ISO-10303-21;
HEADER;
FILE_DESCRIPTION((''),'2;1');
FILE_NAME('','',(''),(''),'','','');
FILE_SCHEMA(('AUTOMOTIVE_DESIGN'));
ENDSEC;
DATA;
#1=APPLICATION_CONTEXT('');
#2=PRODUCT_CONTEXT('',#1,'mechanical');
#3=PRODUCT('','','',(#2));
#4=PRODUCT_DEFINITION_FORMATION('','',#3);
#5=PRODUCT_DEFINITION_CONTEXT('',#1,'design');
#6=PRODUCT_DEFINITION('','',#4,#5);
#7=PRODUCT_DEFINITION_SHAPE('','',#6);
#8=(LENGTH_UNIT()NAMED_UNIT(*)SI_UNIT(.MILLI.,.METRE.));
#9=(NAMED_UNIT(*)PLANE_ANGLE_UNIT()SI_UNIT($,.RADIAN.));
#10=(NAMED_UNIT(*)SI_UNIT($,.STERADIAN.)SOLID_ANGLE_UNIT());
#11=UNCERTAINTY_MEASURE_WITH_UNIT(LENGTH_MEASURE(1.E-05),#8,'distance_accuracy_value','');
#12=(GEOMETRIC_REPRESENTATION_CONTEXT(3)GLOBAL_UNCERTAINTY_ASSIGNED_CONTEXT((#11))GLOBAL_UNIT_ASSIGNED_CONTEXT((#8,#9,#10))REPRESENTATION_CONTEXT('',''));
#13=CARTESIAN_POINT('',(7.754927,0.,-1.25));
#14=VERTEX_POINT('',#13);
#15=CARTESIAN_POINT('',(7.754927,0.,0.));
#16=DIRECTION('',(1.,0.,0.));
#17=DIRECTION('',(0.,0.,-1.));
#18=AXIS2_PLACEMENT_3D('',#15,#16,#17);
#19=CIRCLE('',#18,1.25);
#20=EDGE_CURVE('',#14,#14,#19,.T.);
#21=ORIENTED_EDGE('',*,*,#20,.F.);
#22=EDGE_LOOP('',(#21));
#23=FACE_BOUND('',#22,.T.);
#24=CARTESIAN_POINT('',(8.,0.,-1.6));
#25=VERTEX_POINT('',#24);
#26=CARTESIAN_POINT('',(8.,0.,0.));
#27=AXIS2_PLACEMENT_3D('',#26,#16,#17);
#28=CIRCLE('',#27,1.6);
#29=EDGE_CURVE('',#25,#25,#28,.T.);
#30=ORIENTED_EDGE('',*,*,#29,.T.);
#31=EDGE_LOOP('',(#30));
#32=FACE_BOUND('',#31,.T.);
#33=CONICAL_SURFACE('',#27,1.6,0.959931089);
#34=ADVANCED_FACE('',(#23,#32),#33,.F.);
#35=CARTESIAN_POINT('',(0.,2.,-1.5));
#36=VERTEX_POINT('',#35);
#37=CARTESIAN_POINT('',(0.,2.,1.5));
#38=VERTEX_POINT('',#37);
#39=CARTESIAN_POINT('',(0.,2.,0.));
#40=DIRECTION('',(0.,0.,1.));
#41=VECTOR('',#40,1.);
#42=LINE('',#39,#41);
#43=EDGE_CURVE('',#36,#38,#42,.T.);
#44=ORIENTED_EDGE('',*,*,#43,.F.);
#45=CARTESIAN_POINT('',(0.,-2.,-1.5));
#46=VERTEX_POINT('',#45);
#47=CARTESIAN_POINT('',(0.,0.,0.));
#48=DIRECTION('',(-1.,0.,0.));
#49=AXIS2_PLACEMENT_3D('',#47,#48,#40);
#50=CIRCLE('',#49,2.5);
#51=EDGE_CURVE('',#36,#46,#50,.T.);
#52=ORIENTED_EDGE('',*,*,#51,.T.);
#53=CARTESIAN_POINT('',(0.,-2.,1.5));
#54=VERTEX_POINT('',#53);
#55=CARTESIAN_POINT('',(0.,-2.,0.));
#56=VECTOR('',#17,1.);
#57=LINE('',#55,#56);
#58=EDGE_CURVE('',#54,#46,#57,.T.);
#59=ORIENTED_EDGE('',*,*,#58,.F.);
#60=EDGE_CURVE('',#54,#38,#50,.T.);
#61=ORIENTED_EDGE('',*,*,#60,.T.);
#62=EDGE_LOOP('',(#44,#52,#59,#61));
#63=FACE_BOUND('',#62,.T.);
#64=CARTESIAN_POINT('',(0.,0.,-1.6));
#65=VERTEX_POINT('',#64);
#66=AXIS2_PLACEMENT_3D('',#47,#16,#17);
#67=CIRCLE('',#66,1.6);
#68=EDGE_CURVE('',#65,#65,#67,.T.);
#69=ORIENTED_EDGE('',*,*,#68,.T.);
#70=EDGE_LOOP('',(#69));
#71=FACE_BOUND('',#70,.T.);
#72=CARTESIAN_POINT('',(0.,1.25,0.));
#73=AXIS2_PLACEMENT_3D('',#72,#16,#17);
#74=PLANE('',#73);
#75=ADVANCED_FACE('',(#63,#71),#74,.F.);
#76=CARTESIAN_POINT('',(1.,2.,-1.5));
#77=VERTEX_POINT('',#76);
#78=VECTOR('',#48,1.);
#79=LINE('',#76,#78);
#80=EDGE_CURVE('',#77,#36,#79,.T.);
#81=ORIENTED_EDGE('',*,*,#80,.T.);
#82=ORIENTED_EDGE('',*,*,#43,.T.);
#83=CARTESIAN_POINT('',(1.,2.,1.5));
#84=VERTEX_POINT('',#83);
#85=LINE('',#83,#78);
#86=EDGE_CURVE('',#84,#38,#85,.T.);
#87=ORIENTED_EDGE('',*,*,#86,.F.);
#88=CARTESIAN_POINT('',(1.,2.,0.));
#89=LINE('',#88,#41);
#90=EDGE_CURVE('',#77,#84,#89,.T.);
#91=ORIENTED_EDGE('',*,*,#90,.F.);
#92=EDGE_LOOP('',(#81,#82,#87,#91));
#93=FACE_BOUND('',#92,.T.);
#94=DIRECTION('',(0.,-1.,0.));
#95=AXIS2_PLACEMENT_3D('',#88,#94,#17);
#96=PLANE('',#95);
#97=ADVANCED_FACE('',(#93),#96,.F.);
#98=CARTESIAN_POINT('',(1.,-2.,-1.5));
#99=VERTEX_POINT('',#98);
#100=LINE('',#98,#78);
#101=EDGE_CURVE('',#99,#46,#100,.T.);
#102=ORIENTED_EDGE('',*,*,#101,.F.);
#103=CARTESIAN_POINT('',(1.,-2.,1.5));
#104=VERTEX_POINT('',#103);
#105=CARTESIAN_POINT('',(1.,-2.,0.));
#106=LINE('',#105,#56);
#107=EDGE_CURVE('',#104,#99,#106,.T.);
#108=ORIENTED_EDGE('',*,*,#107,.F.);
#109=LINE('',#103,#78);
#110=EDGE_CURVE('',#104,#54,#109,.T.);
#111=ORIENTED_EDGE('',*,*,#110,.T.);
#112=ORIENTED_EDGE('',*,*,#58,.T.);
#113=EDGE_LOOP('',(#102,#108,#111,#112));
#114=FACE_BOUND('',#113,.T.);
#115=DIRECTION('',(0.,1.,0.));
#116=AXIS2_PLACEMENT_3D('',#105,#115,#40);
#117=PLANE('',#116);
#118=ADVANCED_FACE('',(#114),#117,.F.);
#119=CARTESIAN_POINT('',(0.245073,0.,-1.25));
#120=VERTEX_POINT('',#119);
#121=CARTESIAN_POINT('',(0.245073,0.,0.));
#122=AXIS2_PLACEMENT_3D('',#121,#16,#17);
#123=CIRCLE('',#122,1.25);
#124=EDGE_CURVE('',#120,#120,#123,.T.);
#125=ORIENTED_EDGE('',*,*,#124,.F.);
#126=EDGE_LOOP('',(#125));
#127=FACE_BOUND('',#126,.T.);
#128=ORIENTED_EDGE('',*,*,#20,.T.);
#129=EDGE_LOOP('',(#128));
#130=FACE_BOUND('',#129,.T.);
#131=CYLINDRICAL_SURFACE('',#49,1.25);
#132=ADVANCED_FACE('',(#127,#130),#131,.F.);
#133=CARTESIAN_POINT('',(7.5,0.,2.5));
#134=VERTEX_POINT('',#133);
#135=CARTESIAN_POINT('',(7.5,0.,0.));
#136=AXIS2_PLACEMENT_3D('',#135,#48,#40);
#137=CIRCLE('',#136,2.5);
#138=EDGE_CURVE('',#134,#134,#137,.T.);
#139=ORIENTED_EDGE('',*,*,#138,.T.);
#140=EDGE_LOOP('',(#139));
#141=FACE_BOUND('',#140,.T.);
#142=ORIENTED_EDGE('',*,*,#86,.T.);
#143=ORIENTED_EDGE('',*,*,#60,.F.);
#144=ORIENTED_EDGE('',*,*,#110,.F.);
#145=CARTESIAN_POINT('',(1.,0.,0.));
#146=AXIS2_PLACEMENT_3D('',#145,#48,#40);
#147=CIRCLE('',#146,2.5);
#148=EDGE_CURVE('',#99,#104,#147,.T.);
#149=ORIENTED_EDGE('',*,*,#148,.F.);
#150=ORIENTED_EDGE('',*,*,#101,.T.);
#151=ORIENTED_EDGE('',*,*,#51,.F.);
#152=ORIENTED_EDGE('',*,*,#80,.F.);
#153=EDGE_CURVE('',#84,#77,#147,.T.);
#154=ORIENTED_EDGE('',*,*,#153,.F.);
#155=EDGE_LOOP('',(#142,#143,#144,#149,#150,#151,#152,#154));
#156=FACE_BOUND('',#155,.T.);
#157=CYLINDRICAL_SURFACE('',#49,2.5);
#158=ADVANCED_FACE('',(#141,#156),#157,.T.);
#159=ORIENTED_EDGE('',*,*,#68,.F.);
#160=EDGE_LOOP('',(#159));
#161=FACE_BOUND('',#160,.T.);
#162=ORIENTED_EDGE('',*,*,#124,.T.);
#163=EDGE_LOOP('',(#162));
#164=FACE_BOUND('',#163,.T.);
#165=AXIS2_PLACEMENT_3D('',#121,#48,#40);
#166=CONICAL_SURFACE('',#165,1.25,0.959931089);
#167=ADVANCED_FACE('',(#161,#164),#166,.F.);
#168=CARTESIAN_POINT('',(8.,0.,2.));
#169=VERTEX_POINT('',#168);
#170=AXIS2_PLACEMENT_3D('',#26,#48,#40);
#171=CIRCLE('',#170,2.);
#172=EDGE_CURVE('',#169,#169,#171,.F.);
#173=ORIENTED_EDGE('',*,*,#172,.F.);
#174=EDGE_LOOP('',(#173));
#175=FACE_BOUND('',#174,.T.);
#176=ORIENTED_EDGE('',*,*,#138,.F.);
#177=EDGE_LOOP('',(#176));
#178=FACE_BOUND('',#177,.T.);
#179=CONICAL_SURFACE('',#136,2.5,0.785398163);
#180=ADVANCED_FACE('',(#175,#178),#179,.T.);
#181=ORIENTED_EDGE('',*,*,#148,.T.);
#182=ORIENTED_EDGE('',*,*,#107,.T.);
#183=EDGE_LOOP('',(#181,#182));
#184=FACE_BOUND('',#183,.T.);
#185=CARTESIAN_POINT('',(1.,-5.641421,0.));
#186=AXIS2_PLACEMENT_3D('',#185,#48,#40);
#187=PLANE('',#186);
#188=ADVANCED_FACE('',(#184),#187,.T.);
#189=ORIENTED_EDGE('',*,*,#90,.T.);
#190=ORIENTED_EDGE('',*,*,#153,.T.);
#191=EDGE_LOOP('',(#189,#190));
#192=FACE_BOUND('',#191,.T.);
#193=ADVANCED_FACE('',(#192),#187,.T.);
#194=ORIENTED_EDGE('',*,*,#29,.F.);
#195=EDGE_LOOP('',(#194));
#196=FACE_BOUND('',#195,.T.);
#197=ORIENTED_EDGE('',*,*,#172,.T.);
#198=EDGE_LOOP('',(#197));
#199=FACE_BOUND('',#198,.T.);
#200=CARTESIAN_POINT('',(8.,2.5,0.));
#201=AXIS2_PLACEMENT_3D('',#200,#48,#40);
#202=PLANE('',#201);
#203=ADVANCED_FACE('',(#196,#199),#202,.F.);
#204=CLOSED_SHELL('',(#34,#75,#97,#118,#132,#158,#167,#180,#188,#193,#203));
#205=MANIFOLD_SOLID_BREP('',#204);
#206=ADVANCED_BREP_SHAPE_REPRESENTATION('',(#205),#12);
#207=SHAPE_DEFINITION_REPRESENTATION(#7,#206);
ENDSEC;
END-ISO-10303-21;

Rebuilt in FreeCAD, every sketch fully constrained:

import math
import FreeCAD as App
import Part
import Sketcher
Q = App.Units.Quantity


def edges_at(feature, points):
    """Names of the edges that pass closest to the given points."""
    edges = feature.Shape.Edges
    near = lambda p: min(range(len(edges)), key=lambda i: edges[i].distToShape(Part.Vertex(*p))[0])
    return sorted({f"Edge{near(p) + 1}" for p in points})

doc = App.newDocument("Part")
body = doc.addObject("PartDesign::Body", "Body")

# Sketch on XY plane
sketch1 = body.newObject("Sketcher::SketchObject", "Sketch")
sketch1.AttachmentSupport = (doc.getObject("XY_Plane"), [""])
sketch1.MapMode = "FlatFace"
sketch1.addGeometry(Part.LineSegment(App.Vector(0, 2.5, 0), App.Vector(0, 1.2, 0)), False)
sketch1.addGeometry(Part.LineSegment(App.Vector(0, 1.2, 0), App.Vector(8, 1.2, 0)), False)
sketch1.addGeometry(Part.LineSegment(App.Vector(8, 1.2, 0), App.Vector(8, 2.5, 0)), False)
sketch1.addGeometry(Part.LineSegment(App.Vector(8, 2.5, 0), App.Vector(0, 2.5, 0)), False)
sketch1.addConstraint(Sketcher.Constraint("Coincident", 0, 2, 1, 1))
sketch1.addConstraint(Sketcher.Constraint("Coincident", 1, 2, 2, 1))
sketch1.addConstraint(Sketcher.Constraint("Coincident", 2, 2, 3, 1))
sketch1.addConstraint(Sketcher.Constraint("Coincident", 3, 2, 0, 1))
sketch1.addConstraint(Sketcher.Constraint("Vertical", 0))
sketch1.addConstraint(Sketcher.Constraint("Horizontal", 1))
sketch1.addConstraint(Sketcher.Constraint("Vertical", 2))
sketch1.addConstraint(Sketcher.Constraint("Horizontal", 3))
sketch1.addConstraint(Sketcher.Constraint("PointOnObject", 0, 2, -2))
sketch1.addConstraint(Sketcher.Constraint("DistanceX", 1, 1, 1, 2, 8.0))
sketch1.addConstraint(Sketcher.Constraint("DistanceY", 0, 2, 0, 1, 1.25))
sketch1.addConstraint(Sketcher.Constraint("DistanceY", -1, 1, 2, 2, 2.5))
revolution = body.newObject("PartDesign::Revolution", "Revolution")
revolution.Profile = sketch1
revolution.ReferenceAxis = (sketch1, ["H_Axis"])
revolution.Angle = 360

# Sketch on XZ plane
sketch2 = body.newObject("Sketcher::SketchObject", "Sketch001")
sketch2.AttachmentSupport = (doc.getObject("XZ_Plane"), [""])
sketch2.MapMode = "FlatFace"
sketch2.addGeometry(Part.LineSegment(App.Vector(0, 0, 0), App.Vector(8, 0, 0)), False)
sketch2.addGeometry(Part.LineSegment(App.Vector(8, 0, 0), App.Vector(8, -1.6, 0)), False)
sketch2.addGeometry(Part.LineSegment(App.Vector(8, -1.6, 0), App.Vector(7.75, -1.25, 0)), False)
sketch2.addGeometry(Part.LineSegment(App.Vector(7.75, -1.25, 0), App.Vector(0.25, -1.25, 0)), False)
sketch2.addGeometry(Part.LineSegment(App.Vector(0.25, -1.25, 0), App.Vector(0, -1.6, 0)), False)
sketch2.addGeometry(Part.LineSegment(App.Vector(0, -1.6, 0), App.Vector(0, 0, 0)), False)
sketch2.addConstraint(Sketcher.Constraint("Coincident", 0, 2, 1, 1))
sketch2.addConstraint(Sketcher.Constraint("Coincident", 1, 2, 2, 1))
sketch2.addConstraint(Sketcher.Constraint("Coincident", 2, 2, 3, 1))
sketch2.addConstraint(Sketcher.Constraint("Coincident", 3, 2, 4, 1))
sketch2.addConstraint(Sketcher.Constraint("Coincident", 4, 2, 5, 1))
sketch2.addConstraint(Sketcher.Constraint("Coincident", 5, 2, 0, 1))
sketch2.addConstraint(Sketcher.Constraint("Horizontal", 0))
sketch2.addConstraint(Sketcher.Constraint("Vertical", 1))
sketch2.addConstraint(Sketcher.Constraint("Horizontal", 3))
sketch2.addConstraint(Sketcher.Constraint("Vertical", 5))
sketch2.addConstraint(Sketcher.Constraint("Coincident", 5, 2, -1, 1))
sketch2.addConstraint(Sketcher.Constraint("Horizontal", 1, 2, 4, 2))
sketch2.addConstraint(Sketcher.Constraint("Equal", 2, 4))
sketch2.addConstraint(Sketcher.Constraint("DistanceX", 0, 1, 0, 2, 8.0))
sketch2.addConstraint(Sketcher.Constraint("Angle", 2, Q("125 deg")))
sketch2.addConstraint(Sketcher.Constraint("DistanceY", 1, 2, 1, 1, 1.6))
sketch2.addConstraint(Sketcher.Constraint("DistanceY", 2, 2, -1, 1, 1.25))
groove = body.newObject("PartDesign::Groove", "Groove")
groove.Profile = sketch2
groove.ReferenceAxis = (sketch2, ["H_Axis"])
groove.Angle = 360
doc.recompute()

chamfer = body.newObject("PartDesign::Chamfer", "Chamfer")
chamfer.Base = (groove, edges_at(groove, [(8, -2.5, 0)]))
chamfer.Size = 0.5

# Sketch on YZ plane
sketch3 = body.newObject("Sketcher::SketchObject", "Sketch002")
sketch3.AttachmentSupport = (doc.getObject("YZ_Plane"), [""])
sketch3.MapMode = "FlatFace"
sketch3.addGeometry(Part.ArcOfCircle(Part.Circle(App.Vector(0, 0, 0), App.Vector(0, 0, 1), 2.5), math.radians(-37), math.radians(37)), False)
sketch3.addGeometry(Part.LineSegment(App.Vector(2, -1.5, 0), App.Vector(2, 1.5, 0)), False)
sketch3.addGeometry(Part.LineSegment(App.Vector(-2, 1.5, 0), App.Vector(-2, -1.5, 0)), False)
sketch3.addGeometry(Part.ArcOfCircle(Part.Circle(App.Vector(0, 0, 0), App.Vector(0, 0, 1), 2.5), math.radians(143), math.radians(217)), False)
sketch3.addConstraint(Sketcher.Constraint("Coincident", 0, 1, 1, 1))
sketch3.addConstraint(Sketcher.Constraint("Coincident", 1, 2, 0, 2))
sketch3.addConstraint(Sketcher.Constraint("Coincident", 2, 1, 3, 1))
sketch3.addConstraint(Sketcher.Constraint("Coincident", 3, 2, 2, 2))
sketch3.addConstraint(Sketcher.Constraint("Vertical", 1))
sketch3.addConstraint(Sketcher.Constraint("Vertical", 2))
sketch3.addConstraint(Sketcher.Constraint("Coincident", 0, 3, -1, 1))
sketch3.addConstraint(Sketcher.Constraint("Coincident", 3, 3, -1, 1))
sketch3.addConstraint(Sketcher.Constraint("Equal", 0, 3))
sketch3.addConstraint(Sketcher.Constraint("Horizontal", 1, 2, 2, 1))
sketch3.addConstraint(Sketcher.Constraint("Radius", 0, 2.5))
sketch3.addConstraint(Sketcher.Constraint("DistanceY", 1, 1, 1, 2, 3.0))
pocket1 = body.newObject("PartDesign::Pocket", "Pocket")
pocket1.Profile = sketch3
pocket1.Length = 1
pocket1.Reversed = True

doc.recompute()
